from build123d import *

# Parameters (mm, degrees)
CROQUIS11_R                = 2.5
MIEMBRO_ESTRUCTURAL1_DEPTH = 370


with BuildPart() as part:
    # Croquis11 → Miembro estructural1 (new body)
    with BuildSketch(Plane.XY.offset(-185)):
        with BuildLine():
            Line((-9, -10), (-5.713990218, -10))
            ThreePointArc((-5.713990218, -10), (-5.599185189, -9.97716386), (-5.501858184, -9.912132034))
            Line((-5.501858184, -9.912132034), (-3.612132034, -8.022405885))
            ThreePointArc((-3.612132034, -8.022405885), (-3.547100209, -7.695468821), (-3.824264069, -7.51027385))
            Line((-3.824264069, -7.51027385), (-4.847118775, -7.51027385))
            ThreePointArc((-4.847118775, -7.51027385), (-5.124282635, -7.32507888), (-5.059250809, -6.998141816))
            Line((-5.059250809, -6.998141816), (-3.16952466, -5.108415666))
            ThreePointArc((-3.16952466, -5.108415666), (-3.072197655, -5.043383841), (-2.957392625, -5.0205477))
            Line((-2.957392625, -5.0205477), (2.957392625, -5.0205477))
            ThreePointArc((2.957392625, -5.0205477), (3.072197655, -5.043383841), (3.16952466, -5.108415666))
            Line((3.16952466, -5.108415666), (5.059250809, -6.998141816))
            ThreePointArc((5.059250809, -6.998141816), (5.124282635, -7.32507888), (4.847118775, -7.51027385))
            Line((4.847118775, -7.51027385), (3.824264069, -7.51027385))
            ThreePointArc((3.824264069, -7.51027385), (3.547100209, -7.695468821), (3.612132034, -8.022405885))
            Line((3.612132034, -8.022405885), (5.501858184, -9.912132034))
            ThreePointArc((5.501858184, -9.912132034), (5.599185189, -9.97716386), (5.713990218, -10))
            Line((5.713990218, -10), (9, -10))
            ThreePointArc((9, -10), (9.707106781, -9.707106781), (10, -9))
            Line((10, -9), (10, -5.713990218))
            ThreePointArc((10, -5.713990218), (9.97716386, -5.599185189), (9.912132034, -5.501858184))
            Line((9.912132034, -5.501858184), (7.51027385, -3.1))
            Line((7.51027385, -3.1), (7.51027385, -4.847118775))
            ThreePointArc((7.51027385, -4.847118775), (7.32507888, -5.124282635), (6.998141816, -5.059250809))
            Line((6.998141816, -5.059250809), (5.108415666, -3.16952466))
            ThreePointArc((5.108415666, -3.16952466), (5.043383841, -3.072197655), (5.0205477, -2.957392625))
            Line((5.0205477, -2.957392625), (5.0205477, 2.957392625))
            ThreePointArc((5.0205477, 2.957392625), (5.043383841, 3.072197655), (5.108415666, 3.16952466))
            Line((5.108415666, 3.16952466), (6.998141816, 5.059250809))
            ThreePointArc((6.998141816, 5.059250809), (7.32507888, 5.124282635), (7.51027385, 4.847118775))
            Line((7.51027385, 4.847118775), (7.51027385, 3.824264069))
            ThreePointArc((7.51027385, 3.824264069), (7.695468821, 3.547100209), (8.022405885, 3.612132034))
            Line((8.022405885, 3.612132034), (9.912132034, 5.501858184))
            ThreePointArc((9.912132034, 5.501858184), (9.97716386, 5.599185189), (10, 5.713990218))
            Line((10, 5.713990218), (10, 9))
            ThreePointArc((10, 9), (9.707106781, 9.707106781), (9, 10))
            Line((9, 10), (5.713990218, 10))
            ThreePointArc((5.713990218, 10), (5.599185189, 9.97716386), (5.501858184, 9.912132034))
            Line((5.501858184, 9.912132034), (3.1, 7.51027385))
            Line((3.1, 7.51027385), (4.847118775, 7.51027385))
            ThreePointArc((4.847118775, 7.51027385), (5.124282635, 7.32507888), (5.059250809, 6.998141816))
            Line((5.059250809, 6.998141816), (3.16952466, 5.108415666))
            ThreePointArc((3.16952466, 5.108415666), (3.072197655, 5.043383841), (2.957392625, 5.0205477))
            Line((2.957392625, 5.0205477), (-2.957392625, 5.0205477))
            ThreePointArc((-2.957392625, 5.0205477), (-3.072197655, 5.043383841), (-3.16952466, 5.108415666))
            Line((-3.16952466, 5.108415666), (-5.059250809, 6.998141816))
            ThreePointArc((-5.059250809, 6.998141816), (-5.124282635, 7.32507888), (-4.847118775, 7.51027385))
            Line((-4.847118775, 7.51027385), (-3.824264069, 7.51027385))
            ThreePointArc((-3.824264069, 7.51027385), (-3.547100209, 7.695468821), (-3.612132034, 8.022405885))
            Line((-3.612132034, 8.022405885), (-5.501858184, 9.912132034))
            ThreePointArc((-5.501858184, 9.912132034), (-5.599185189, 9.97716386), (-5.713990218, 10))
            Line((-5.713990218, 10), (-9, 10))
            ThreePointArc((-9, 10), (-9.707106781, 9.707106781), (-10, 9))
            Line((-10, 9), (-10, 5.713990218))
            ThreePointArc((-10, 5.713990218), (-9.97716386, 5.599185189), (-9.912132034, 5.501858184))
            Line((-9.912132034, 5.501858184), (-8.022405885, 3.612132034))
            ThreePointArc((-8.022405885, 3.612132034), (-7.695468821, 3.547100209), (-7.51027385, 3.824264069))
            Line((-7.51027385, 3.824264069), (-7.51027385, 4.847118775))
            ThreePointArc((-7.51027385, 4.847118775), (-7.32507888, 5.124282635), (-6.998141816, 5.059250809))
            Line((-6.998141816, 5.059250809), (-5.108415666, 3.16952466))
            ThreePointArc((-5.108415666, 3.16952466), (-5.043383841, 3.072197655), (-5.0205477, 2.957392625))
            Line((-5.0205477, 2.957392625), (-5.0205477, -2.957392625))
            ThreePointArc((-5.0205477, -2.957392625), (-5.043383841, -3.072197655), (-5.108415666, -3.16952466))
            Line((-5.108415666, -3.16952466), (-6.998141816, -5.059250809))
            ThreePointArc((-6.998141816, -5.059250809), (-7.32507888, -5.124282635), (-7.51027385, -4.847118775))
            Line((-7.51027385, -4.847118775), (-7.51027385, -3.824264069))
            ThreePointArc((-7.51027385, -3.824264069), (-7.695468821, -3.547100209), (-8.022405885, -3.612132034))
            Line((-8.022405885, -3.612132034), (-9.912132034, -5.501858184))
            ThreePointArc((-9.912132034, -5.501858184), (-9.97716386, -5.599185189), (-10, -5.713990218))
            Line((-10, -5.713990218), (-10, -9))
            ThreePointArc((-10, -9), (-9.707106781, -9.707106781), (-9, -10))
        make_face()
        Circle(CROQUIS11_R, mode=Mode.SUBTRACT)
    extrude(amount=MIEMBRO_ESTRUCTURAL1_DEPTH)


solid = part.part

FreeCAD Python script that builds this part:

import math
import FreeCAD as App
import Part
import Sketcher

V = App.Vector

doc = App.newDocument("Part")
body = doc.addObject("PartDesign::Body", "Body")

# Sketch on XY plane
sketch1 = body.newObject("Sketcher::SketchObject", "Sketch")
sketch1.AttachmentSupport = (doc.getObject("XY_Plane"), [""])
sketch1.MapMode = "FlatFace"
sketch1.AttachmentOffset = App.Placement(V(0, 0, -185), App.Rotation())
sketch1.addGeometry([
    Part.LineSegment(V(-9, -10, 0), V(-5.71, -10, 0)),  # 0
    Part.ArcOfCircle(Part.Circle(V(-5.71, -9.7, 0), V(0, 0, 1), 0.3), math.radians(-90), math.radians(-45)),  # 1
    Part.LineSegment(V(-5.5, -9.91, 0), V(-3.61, -8.02, 0)),  # 2
    Part.ArcOfCircle(Part.Circle(V(-3.82, -7.81, 0), V(0, 0, 1), 0.3), math.radians(-45), math.radians(90)),  # 3
    Part.LineSegment(V(-3.82, -7.51, 0), V(-4.85, -7.51, 0)),  # 4
    Part.ArcOfCircle(Part.Circle(V(-4.85, -7.21, 0), V(0, 0, 1), 0.3), math.radians(135), math.radians(270)),  # 5
    Part.LineSegment(V(-5.06, -7, 0), V(-3.17, -5.11, 0)),  # 6
    Part.ArcOfCircle(Part.Circle(V(-2.96, -5.32, 0), V(0, 0, 1), 0.3), math.radians(90), math.radians(135)),  # 7
    Part.LineSegment(V(-2.96, -5.02, 0), V(2.96, -5.02, 0)),  # 8
    Part.ArcOfCircle(Part.Circle(V(2.96, -5.32, 0), V(0, 0, 1), 0.3), math.radians(45), math.radians(90)),  # 9
    Part.LineSegment(V(3.17, -5.11, 0), V(5.06, -7, 0)),  # 10
    Part.ArcOfCircle(Part.Circle(V(4.85, -7.21, 0), V(0, 0, 1), 0.3), math.radians(-90), math.radians(45)),  # 11
    Part.LineSegment(V(4.85, -7.51, 0), V(3.82, -7.51, 0)),  # 12
    Part.ArcOfCircle(Part.Circle(V(3.82, -7.81, 0), V(0, 0, 1), 0.3), math.radians(90), math.radians(225)),  # 13
    Part.LineSegment(V(3.61, -8.02, 0), V(5.5, -9.91, 0)),  # 14
    Part.ArcOfCircle(Part.Circle(V(5.71, -9.7, 0), V(0, 0, 1), 0.3), math.radians(-135), math.radians(-90)),  # 15
    Part.LineSegment(V(5.71, -10, 0), V(9, -10, 0)),  # 16
    Part.ArcOfCircle(Part.Circle(V(9, -9, 0), V(0, 0, 1), 1), math.radians(-90), math.radians(0)),  # 17
    Part.LineSegment(V(10, -9, 0), V(10, -5.71, 0)),  # 18
    Part.ArcOfCircle(Part.Circle(V(9.7, -5.71, 0), V(0, 0, 1), 0.3), math.radians(0), math.radians(45)),  # 19
    Part.LineSegment(V(9.91, -5.5, 0), V(7.51, -3.1, 0)),  # 20
    Part.LineSegment(V(7.51, -3.1, 0), V(7.51, -4.85, 0)),  # 21
    Part.ArcOfCircle(Part.Circle(V(7.21, -4.85, 0), V(0, 0, 1), 0.3), math.radians(-135), math.radians(0)),  # 22
    Part.LineSegment(V(7, -5.06, 0), V(5.11, -3.17, 0)),  # 23
    Part.ArcOfCircle(Part.Circle(V(5.32, -2.96, 0), V(0, 0, 1), 0.3), math.radians(-180), math.radians(-135)),  # 24
    Part.LineSegment(V(5.02, -2.96, 0), V(5.02, 2.96, 0)),  # 25
    Part.ArcOfCircle(Part.Circle(V(5.32, 2.96, 0), V(0, 0, 1), 0.3), math.radians(135), math.radians(180)),  # 26
    Part.LineSegment(V(5.11, 3.17, 0), V(7, 5.06, 0)),  # 27
    Part.ArcOfCircle(Part.Circle(V(7.21, 4.85, 0), V(0, 0, 1), 0.3), math.radians(0), math.radians(135)),  # 28
    Part.LineSegment(V(7.51, 4.85, 0), V(7.51, 3.82, 0)),  # 29
    Part.ArcOfCircle(Part.Circle(V(7.81, 3.82, 0), V(0, 0, 1), 0.3), math.radians(-180), math.radians(-45)),  # 30
    Part.LineSegment(V(8.02, 3.61, 0), V(9.91, 5.5, 0)),  # 31
    Part.ArcOfCircle(Part.Circle(V(9.7, 5.71, 0), V(0, 0, 1), 0.3), math.radians(-45), math.radians(0)),  # 32
    Part.LineSegment(V(10, 5.71, 0), V(10, 9, 0)),  # 33
    Part.ArcOfCircle(Part.Circle(V(9, 9, 0), V(0, 0, 1), 1), math.radians(0), math.radians(90)),  # 34
    Part.LineSegment(V(9, 10, 0), V(5.71, 10, 0)),  # 35
    Part.ArcOfCircle(Part.Circle(V(5.71, 9.7, 0), V(0, 0, 1), 0.3), math.radians(90), math.radians(135)),  # 36
    Part.LineSegment(V(5.5, 9.91, 0), V(3.1, 7.51, 0)),  # 37
    Part.LineSegment(V(3.1, 7.51, 0), V(4.85, 7.51, 0)),  # 38
    Part.ArcOfCircle(Part.Circle(V(4.85, 7.21, 0), V(0, 0, 1), 0.3), math.radians(-45), math.radians(90)),  # 39
    Part.LineSegment(V(5.06, 7, 0), V(3.17, 5.11, 0)),  # 40
    Part.ArcOfCircle(Part.Circle(V(2.96, 5.32, 0), V(0, 0, 1), 0.3), math.radians(-90), math.radians(-45)),  # 41
    Part.LineSegment(V(2.96, 5.02, 0), V(-2.96, 5.02, 0)),  # 42
    Part.ArcOfCircle(Part.Circle(V(-2.96, 5.32, 0), V(0, 0, 1), 0.3), math.radians(-135), math.radians(-90)),  # 43
    Part.LineSegment(V(-3.17, 5.11, 0), V(-5.06, 7, 0)),  # 44
    Part.ArcOfCircle(Part.Circle(V(-4.85, 7.21, 0), V(0, 0, 1), 0.3), math.radians(90), math.radians(225)),  # 45
    Part.LineSegment(V(-4.85, 7.51, 0), V(-3.82, 7.51, 0)),  # 46
    Part.ArcOfCircle(Part.Circle(V(-3.82, 7.81, 0), V(0, 0, 1), 0.3), math.radians(-90), math.radians(45)),  # 47
    Part.LineSegment(V(-3.61, 8.02, 0), V(-5.5, 9.91, 0)),  # 48
    Part.ArcOfCircle(Part.Circle(V(-5.71, 9.7, 0), V(0, 0, 1), 0.3), math.radians(45), math.radians(90)),  # 49
    Part.LineSegment(V(-5.71, 10, 0), V(-9, 10, 0)),  # 50
    Part.ArcOfCircle(Part.Circle(V(-9, 9, 0), V(0, 0, 1), 1), math.radians(90), math.radians(180)),  # 51
    Part.LineSegment(V(-10, 9, 0), V(-10, 5.71, 0)),  # 52
    Part.ArcOfCircle(Part.Circle(V(-9.7, 5.71, 0), V(0, 0, 1), 0.3), math.radians(180), math.radians(225)),  # 53
    Part.LineSegment(V(-9.91, 5.5, 0), V(-8.02, 3.61, 0)),  # 54
    Part.ArcOfCircle(Part.Circle(V(-7.81, 3.82, 0), V(0, 0, 1), 0.3), math.radians(-135), math.radians(0)),  # 55
    Part.LineSegment(V(-7.51, 3.82, 0), V(-7.51, 4.85, 0)),  # 56
    Part.ArcOfCircle(Part.Circle(V(-7.21, 4.85, 0), V(0, 0, 1), 0.3), math.radians(45), math.radians(180)),  # 57
    Part.LineSegment(V(-7, 5.06, 0), V(-5.11, 3.17, 0)),  # 58
    Part.ArcOfCircle(Part.Circle(V(-5.32, 2.96, 0), V(0, 0, 1), 0.3), math.radians(0), math.radians(45)),  # 59
    Part.LineSegment(V(-5.02, 2.96, 0), V(-5.02, -2.96, 0)),  # 60
    Part.ArcOfCircle(Part.Circle(V(-5.32, -2.96, 0), V(0, 0, 1), 0.3), math.radians(-45), math.radians(0)),  # 61
    Part.LineSegment(V(-5.11, -3.17, 0), V(-7, -5.06, 0)),  # 62
    Part.ArcOfCircle(Part.Circle(V(-7.21, -4.85, 0), V(0, 0, 1), 0.3), math.radians(180), math.radians(315)),  # 63
    Part.LineSegment(V(-7.51, -4.85, 0), V(-7.51, -3.82, 0)),  # 64
    Part.ArcOfCircle(Part.Circle(V(-7.81, -3.82, 0), V(0, 0, 1), 0.3), math.radians(0), math.radians(135)),  # 65
    Part.LineSegment(V(-8.02, -3.61, 0), V(-9.91, -5.5, 0)),  # 66
    Part.ArcOfCircle(Part.Circle(V(-9.7, -5.71, 0), V(0, 0, 1), 0.3), math.radians(135), math.radians(180)),  # 67
    Part.LineSegment(V(-10, -5.71, 0), V(-10, -9, 0)),  # 68
    Part.ArcOfCircle(Part.Circle(V(-9, -9, 0), V(0, 0, 1), 1), math.radians(-180), math.radians(-90)),  # 69
    Part.Circle(V(0, 0, 0), V(0, 0, 1), 2.5),  # 70
], False)
sketch1.addConstraint([
    Sketcher.Constraint("Tangent", 0, 2, 1, 1),
    Sketcher.Constraint("Tangent", 1, 2, 2, 1),
    Sketcher.Constraint("Tangent", 2, 2, 3, 1),
    Sketcher.Constraint("Tangent", 3, 2, 4, 1),
    Sketcher.Constraint("Tangent", 4, 2, 5, 2),
    Sketcher.Constraint("Tangent", 5, 1, 6, 1),
    Sketcher.Constraint("Tangent", 6, 2, 7, 2),
    Sketcher.Constraint("Tangent", 7, 1, 8, 1),
    Sketcher.Constraint("Tangent", 8, 2, 9, 2),
    Sketcher.Constraint("Tangent", 9, 1, 10, 1),
    Sketcher.Constraint("Tangent", 10, 2, 11, 2),
    Sketcher.Constraint("Tangent", 11, 1, 12, 1),
    Sketcher.Constraint("Tangent", 12, 2, 13, 1),
    Sketcher.Constraint("Tangent", 13, 2, 14, 1),
    Sketcher.Constraint("Tangent", 14, 2, 15, 1),
    Sketcher.Constraint("Tangent", 15, 2, 16, 1),
    Sketcher.Constraint("Tangent", 16, 2, 17, 1),
    Sketcher.Constraint("Tangent", 17, 2, 18, 1),
    Sketcher.Constraint("Tangent", 18, 2, 19, 1),
    Sketcher.Constraint("Tangent", 19, 2, 20, 1),
    Sketcher.Constraint("Coincident", 20, 2, 21, 1),
    Sketcher.Constraint("Tangent", 21, 2, 22, 2),
    Sketcher.Constraint("Tangent", 22, 1, 23, 1),
    Sketcher.Constraint("Tangent", 23, 2, 24, 2),
    Sketcher.Constraint("Tangent", 24, 1, 25, 1),
    Sketcher.Constraint("Tangent", 25, 2, 26, 2),
    Sketcher.Constraint("Tangent", 26, 1, 27, 1),
    Sketcher.Constraint("Tangent", 27, 2, 28, 2),
    Sketcher.Constraint("Tangent", 28, 1, 29, 1),
    Sketcher.Constraint("Tangent", 29, 2, 30, 1),
    Sketcher.Constraint("Tangent", 30, 2, 31, 1),
    Sketcher.Constraint("Tangent", 31, 2, 32, 1),
    Sketcher.Constraint("Tangent", 32, 2, 33, 1),
    Sketcher.Constraint("Tangent", 33, 2, 34, 1),
    Sketcher.Constraint("Tangent", 34, 2, 35, 1),
    Sketcher.Constraint("Tangent", 35, 2, 36, 1),
    Sketcher.Constraint("Tangent", 36, 2, 37, 1),
    Sketcher.Constraint("Coincident", 37, 2, 38, 1),
    Sketcher.Constraint("Tangent", 38, 2, 39, 2),
    Sketcher.Constraint("Tangent", 39, 1, 40, 1),
    Sketcher.Constraint("Tangent", 40, 2, 41, 2),
    Sketcher.Constraint("Tangent", 41, 1, 42, 1),
    Sketcher.Constraint("Tangent", 42, 2, 43, 2),
    Sketcher.Constraint("Tangent", 43, 1, 44, 1),
    Sketcher.Constraint("Tangent", 44, 2, 45, 2),
    Sketcher.Constraint("Tangent", 45, 1, 46, 1),
    Sketcher.Constraint("Tangent", 46, 2, 47, 1),
    Sketcher.Constraint("Tangent", 47, 2, 48, 1),
    Sketcher.Constraint("Tangent", 48, 2, 49, 1),
    Sketcher.Constraint("Tangent", 49, 2, 50, 1),
    Sketcher.Constraint("Tangent", 50, 2, 51, 1),
    Sketcher.Constraint("Tangent", 51, 2, 52, 1),
    Sketcher.Constraint("Tangent", 52, 2, 53, 1),
    Sketcher.Constraint("Tangent", 53, 2, 54, 1),
    Sketcher.Constraint("Tangent", 54, 2, 55, 1),
    Sketcher.Constraint("Tangent", 55, 2, 56, 1),
    Sketcher.Constraint("Tangent", 56, 2, 57, 2),
    Sketcher.Constraint("Tangent", 57, 1, 58, 1),
    Sketcher.Constraint("Tangent", 58, 2, 59, 2),
    Sketcher.Constraint("Tangent", 59, 1, 60, 1),
    Sketcher.Constraint("Tangent", 60, 2, 61, 2),
    Sketcher.Constraint("Tangent", 61, 1, 62, 1),
    Sketcher.Constraint("Tangent", 62, 2, 63, 2),
    Sketcher.Constraint("Tangent", 63, 1, 64, 1),
    Sketcher.Constraint("Tangent", 64, 2, 65, 1),
    Sketcher.Constraint("Tangent", 65, 2, 66, 1),
    Sketcher.Constraint("Tangent", 66, 2, 67, 1),
    Sketcher.Constraint("Tangent", 67, 2, 68, 1),
    Sketcher.Constraint("Tangent", 68, 2, 69, 1),
    Sketcher.Constraint("Tangent", 69, 2, 0, 1),
    Sketcher.Constraint("Horizontal", 0),
    Sketcher.Constraint("Horizontal", 4),
    Sketcher.Constraint("Horizontal", 8),
    Sketcher.Constraint("Horizontal", 12),
    Sketcher.Constraint("Horizontal", 16),
    Sketcher.Constraint("Vertical", 18),
    Sketcher.Constraint("Vertical", 21),
    Sketcher.Constraint("Vertical", 25),
    Sketcher.Constraint("Vertical", 29),
    Sketcher.Constraint("Vertical", 33),
    Sketcher.Constraint("Horizontal", 35),
    Sketcher.Constraint("Horizontal", 38),
    Sketcher.Constraint("Horizontal", 42),
    Sketcher.Constraint("Horizontal", 46),
    Sketcher.Constraint("Horizontal", 50),
    Sketcher.Constraint("Vertical", 52),
    Sketcher.Constraint("Vertical", 56),
    Sketcher.Constraint("Vertical", 60),
    Sketcher.Constraint("Vertical", 64),
    Sketcher.Constraint("Vertical", 68),
    Sketcher.Constraint("Coincident", 70, 3, -1, 1),
    Sketcher.Constraint("Equal", 1, 3),
    Sketcher.Constraint("Equal", 3, 5),
    Sketcher.Constraint("Equal", 5, 7),
    Sketcher.Constraint("Equal", 7, 9),
    Sketcher.Constraint("Equal", 9, 11),
    Sketcher.Constraint("Equal", 11, 13),
    Sketcher.Constraint("Equal", 13, 15),
    Sketcher.Constraint("Equal", 15, 19),
    Sketcher.Constraint("Equal", 19, 22),
    Sketcher.Constraint("Equal", 22, 24),
    Sketcher.Constraint("Equal", 24, 26),
    Sketcher.Constraint("Equal", 26, 28),
    Sketcher.Constraint("Equal", 28, 30),
    Sketcher.Constraint("Equal", 30, 32),
    Sketcher.Constraint("Equal", 17, 34),
    Sketcher.Constraint("Equal", 32, 36),
    Sketcher.Constraint("Equal", 36, 39),
    Sketcher.Constraint("Equal", 39, 41),
    Sketcher.Constraint("Equal", 41, 43),
    Sketcher.Constraint("Equal", 43, 45),
    Sketcher.Constraint("Equal", 45, 47),
    Sketcher.Constraint("Equal", 47, 49),
    Sketcher.Constraint("Equal", 34, 51),
    Sketcher.Constraint("Equal", 49, 53),
    Sketcher.Constraint("Equal", 53, 55),
    Sketcher.Constraint("Equal", 55, 57),
    Sketcher.Constraint("Equal", 57, 59),
    Sketcher.Constraint("Equal", 59, 61),
    Sketcher.Constraint("Equal", 61, 63),
    Sketcher.Constraint("Equal", 63, 65),
    Sketcher.Constraint("Equal", 65, 67),
    Sketcher.Constraint("Equal", 51, 69),
    Sketcher.Constraint("Symmetric", 1, 3, 36, 3, -1, 1),
    Sketcher.Constraint("Symmetric", 5, 3, 39, 3, -1, 1),
    Sketcher.Constraint("Symmetric", 7, 3, 41, 3, -1, 1),
    Sketcher.Constraint("Symmetric", 11, 3, 45, 3, -1, 1),
    Sketcher.Constraint("Symmetric", 15, 3, 49, 3, -1, 1),
    Sketcher.Constraint("Symmetric", 19, 3, 53, 3, -1, 1),
    Sketcher.Constraint("Symmetric", 22, 3, 57, 3, -1, 1),
    Sketcher.Constraint("Symmetric", 24, 3, 59, 3, -1, 1),
    Sketcher.Constraint("Symmetric", 28, 3, 63, 3, -1, 1),
    Sketcher.Constraint("Symmetric", 32, 3, 67, 3, -1, 1),
    Sketcher.Constraint("Symmetric", 5, 3, 11, 3, -2),
    Sketcher.Constraint("Symmetric", 1, 3, 15, 3, -2),
    Sketcher.Constraint("Symmetric", 32, 3, 53, 3, -2),
    Sketcher.Constraint("Symmetric", 30, 3, 55, 3, -2),
    Sketcher.Constraint("Symmetric", 27, 2, 57, 1, -2),
    Sketcher.Constraint("Parallel", 2, 6),
    Sketcher.Constraint("Perpendicular", 6, 10),
    Sketcher.Constraint("Parallel", 10, 14),
    Sketcher.Constraint("Parallel", 14, 20),
    Sketcher.Constraint("Parallel", 20, 23),
    Sketcher.Constraint("Perpendicular", 23, 27),
    Sketcher.Constraint("Parallel", 27, 31),
    Sketcher.Constraint("Parallel", 31, 37),
    Sketcher.Constraint("Perpendicular", 40, 44),
    Sketcher.Constraint("Parallel", 44, 48),
    Sketcher.Constraint("Perpendicular", 58, 62),
    Sketcher.Constraint("Parallel", 62, 66),
    Sketcher.Constraint("Equal", 50, 18),
    Sketcher.Constraint("Equal", 38, 21),
    Sketcher.Constraint("Equal", 42, 25),
    Sketcher.Constraint("Equal", 2, 6),
    Sketcher.Constraint("Equal", 14, 23),
    Sketcher.Constraint("Equal", 27, 31),
    Sketcher.Constraint("Diameter", 70, 5.0),
    Sketcher.Constraint("Radius", 17, 1.0),
    Sketcher.Constraint("Radius", 1, 0.3),
    Sketcher.Constraint("DistanceX", -1, 1, 17, 3, 9.0),
    Sketcher.Constraint("DistanceY", 20, 2, -1, 1, 3.1),
    Sketcher.Constraint("DistanceX", 0, 1, 0, 2, 3.28601),
    Sketcher.Constraint("DistanceX", 38, 1, 38, 2, 1.747119),
])
pad1 = body.newObject("PartDesign::Pad", "Pad")
pad1.Profile = sketch1
pad1.Length = 370

doc.recompute()
